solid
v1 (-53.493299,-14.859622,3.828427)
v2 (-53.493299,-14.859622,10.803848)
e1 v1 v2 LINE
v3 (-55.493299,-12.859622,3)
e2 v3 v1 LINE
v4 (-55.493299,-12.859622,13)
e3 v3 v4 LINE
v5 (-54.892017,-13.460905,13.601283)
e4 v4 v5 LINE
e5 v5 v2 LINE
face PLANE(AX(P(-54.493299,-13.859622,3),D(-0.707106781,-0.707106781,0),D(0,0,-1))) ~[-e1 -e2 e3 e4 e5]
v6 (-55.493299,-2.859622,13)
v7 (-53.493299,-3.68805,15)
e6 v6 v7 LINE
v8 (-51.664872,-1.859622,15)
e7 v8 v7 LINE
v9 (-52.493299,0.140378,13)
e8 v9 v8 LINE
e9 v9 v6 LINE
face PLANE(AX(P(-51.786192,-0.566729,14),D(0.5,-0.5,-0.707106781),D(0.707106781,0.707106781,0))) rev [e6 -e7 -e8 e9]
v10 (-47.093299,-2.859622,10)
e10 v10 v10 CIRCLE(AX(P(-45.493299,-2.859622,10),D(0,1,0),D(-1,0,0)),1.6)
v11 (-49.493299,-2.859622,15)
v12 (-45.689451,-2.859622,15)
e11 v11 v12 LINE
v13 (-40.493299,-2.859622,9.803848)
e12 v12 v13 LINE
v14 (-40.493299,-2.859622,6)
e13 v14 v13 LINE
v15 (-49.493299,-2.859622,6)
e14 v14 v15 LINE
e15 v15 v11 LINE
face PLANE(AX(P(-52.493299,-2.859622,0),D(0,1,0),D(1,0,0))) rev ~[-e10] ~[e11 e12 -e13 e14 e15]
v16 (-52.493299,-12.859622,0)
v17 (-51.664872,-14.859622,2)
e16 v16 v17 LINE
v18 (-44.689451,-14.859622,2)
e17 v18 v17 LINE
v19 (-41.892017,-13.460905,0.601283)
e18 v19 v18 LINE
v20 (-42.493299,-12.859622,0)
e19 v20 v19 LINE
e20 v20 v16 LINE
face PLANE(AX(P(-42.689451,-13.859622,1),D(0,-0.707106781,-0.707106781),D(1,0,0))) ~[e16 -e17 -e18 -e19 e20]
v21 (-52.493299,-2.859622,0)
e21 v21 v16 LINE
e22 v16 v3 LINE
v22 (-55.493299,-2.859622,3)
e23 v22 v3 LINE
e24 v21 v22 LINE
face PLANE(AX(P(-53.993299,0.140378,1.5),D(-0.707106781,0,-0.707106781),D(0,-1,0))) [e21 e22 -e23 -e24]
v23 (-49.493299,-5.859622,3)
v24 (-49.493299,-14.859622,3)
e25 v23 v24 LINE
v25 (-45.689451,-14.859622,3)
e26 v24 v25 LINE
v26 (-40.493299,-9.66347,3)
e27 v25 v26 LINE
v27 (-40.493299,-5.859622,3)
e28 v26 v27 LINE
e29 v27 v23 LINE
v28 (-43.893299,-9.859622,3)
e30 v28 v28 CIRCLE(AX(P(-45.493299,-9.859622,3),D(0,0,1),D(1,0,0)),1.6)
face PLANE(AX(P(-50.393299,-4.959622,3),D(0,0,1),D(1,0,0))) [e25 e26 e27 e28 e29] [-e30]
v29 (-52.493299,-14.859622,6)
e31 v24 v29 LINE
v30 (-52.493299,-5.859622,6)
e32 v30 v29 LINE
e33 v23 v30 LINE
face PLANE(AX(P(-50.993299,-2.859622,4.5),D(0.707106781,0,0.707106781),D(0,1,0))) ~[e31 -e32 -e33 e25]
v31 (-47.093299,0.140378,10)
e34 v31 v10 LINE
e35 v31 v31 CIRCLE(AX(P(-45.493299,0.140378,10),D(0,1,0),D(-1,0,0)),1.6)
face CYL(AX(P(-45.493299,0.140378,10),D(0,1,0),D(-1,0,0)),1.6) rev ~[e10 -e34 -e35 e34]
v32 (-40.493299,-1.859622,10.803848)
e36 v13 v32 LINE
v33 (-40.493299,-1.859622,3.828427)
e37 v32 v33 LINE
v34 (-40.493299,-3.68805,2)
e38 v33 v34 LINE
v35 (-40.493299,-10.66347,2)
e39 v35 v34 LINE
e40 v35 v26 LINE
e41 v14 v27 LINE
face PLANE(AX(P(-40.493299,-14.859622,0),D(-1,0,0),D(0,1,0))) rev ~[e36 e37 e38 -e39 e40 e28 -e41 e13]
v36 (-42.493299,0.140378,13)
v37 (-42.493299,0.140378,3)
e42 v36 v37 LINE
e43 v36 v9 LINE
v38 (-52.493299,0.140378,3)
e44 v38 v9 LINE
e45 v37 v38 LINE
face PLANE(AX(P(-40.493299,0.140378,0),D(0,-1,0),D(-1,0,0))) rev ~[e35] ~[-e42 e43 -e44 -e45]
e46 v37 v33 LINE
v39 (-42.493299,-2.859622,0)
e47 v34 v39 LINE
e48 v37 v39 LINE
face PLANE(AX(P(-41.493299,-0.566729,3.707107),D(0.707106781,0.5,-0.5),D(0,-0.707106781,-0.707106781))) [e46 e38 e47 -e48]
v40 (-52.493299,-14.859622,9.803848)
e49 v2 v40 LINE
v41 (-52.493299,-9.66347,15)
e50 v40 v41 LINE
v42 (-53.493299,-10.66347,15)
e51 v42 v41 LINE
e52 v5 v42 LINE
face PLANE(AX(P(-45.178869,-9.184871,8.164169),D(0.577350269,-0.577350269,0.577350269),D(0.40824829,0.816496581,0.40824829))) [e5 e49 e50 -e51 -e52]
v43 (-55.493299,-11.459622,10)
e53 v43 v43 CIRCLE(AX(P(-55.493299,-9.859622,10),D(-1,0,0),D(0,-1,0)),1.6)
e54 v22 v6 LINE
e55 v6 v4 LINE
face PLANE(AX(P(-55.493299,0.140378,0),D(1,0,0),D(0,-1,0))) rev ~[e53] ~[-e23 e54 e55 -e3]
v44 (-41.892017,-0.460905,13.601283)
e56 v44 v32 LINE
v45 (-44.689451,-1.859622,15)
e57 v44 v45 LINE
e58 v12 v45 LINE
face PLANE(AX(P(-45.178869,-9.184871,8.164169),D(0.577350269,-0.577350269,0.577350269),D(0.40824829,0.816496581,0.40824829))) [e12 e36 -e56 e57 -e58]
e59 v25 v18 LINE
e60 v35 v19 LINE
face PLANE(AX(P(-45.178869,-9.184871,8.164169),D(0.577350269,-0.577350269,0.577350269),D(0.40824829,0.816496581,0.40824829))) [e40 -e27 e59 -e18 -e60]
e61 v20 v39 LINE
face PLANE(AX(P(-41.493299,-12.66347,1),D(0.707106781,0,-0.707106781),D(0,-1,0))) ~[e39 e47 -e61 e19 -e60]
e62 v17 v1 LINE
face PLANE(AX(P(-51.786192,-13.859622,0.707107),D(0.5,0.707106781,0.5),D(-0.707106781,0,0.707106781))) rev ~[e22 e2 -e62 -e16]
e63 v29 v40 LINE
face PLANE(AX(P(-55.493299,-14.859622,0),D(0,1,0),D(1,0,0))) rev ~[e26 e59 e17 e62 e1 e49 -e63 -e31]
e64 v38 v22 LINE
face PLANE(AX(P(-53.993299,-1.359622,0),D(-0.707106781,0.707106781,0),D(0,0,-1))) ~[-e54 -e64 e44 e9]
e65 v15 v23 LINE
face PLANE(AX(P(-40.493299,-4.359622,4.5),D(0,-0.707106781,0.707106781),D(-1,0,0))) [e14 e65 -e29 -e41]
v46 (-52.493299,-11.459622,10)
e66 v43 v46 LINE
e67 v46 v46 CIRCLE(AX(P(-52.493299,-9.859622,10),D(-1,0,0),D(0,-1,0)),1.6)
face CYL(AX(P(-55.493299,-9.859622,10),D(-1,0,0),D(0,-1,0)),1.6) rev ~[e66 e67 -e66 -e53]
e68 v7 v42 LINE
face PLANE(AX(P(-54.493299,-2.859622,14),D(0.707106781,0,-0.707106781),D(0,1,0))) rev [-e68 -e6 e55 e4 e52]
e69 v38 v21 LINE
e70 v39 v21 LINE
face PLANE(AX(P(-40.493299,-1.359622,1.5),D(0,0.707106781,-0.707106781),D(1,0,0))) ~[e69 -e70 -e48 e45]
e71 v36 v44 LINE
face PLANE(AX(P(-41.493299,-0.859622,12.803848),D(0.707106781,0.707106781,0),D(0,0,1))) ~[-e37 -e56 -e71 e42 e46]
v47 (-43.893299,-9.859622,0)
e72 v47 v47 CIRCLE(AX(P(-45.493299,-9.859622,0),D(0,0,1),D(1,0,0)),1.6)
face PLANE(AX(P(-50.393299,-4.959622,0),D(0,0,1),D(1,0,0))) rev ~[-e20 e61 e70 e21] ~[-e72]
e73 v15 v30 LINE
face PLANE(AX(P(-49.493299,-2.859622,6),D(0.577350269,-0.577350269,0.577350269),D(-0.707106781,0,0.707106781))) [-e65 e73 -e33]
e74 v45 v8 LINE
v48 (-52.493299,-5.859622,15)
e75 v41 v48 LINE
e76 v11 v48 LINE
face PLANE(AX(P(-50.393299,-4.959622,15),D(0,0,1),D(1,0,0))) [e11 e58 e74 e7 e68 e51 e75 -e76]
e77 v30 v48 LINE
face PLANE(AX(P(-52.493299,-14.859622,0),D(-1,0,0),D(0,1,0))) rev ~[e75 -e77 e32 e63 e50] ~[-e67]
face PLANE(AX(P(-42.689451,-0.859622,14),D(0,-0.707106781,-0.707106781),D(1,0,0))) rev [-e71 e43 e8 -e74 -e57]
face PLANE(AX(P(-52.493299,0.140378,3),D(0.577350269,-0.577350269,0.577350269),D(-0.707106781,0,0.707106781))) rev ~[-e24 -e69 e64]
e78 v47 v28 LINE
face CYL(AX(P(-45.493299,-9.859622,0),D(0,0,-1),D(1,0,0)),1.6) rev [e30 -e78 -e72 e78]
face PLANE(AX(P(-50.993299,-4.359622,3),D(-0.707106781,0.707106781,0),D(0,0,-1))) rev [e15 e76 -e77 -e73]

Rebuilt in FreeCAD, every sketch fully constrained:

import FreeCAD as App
import Part
import Sketcher
from FreeCAD import Vector
Q = App.Units.Quantity


def edges_at(feature, points):
    """Names of the edges that pass closest to the given points."""
    edges = feature.Shape.Edges
    near = lambda p: min(range(len(edges)), key=lambda i: edges[i].distToShape(Part.Vertex(*p))[0])
    return sorted({f"Edge{near(p) + 1}" for p in points})

doc = App.newDocument("Part")
body = doc.addObject("PartDesign::Body", "Body")

sketch1 = body.newObject("Sketcher::SketchObject", "Sketch")
sketch1.AttachmentSupport = (doc.getObject("XY_Plane"), [""])
sketch1.MapMode = "FlatFace"
sketch1.addGeometry([
    Part.LineSegment(Vector(-40.5, 0.1, 0), Vector(-55.5, 0.1, 0)),
    Part.LineSegment(Vector(-55.5, 0.1, 0), Vector(-55.5, -14.9, 0)),
    Part.LineSegment(Vector(-55.5, -14.9, 0), Vector(-40.5, -14.9, 0)),
    Part.LineSegment(Vector(-40.5, -14.9, 0), Vector(-40.5, 0.1, 0)),
    Part.Circle(Vector(-45.5, -9.9, 0), Vector(0, 0, 1), 1.6),
], False)
sketch1.addConstraint([
    Sketcher.Constraint("Coincident", 0, 2, 1, 1),
    Sketcher.Constraint("Coincident", 1, 2, 2, 1),
    Sketcher.Constraint("Coincident", 2, 2, 3, 1),
    Sketcher.Constraint("Coincident", 3, 2, 0, 1),
    Sketcher.Constraint("Horizontal", 0),
    Sketcher.Constraint("Vertical", 1),
    Sketcher.Constraint("Horizontal", 2),
    Sketcher.Constraint("Vertical", 3),
    Sketcher.Constraint("Equal", 2, 1),
    Sketcher.Constraint("Diameter", 4, Q("3.2 mm")),
    Sketcher.Constraint("DistanceX", 0, 2, 0, 1, Q("15 mm")),
    Sketcher.Constraint("DistanceX", 0, 2, 4, 3, Q("10 mm")),
    Sketcher.Constraint("DistanceY", 4, 3, 0, 2, Q("10 mm")),
    Sketcher.Constraint("DistanceX", 4, 3, -1, 1, Q("45.493299 mm")),
    Sketcher.Constraint("DistanceY", 4, 3, -1, 1, Q("9.859622 mm")),
])
pad1 = body.newObject("PartDesign::Pad", "Pad")
pad1.Profile = sketch1
pad1.Length = 3

sketch2 = body.newObject("Sketcher::SketchObject", "Sketch001")
sketch2.AttachmentSupport = (doc.getObject("XY_Plane"), [""])
sketch2.MapMode = "FlatFace"
sketch2.addGeometry([
    Part.LineSegment(Vector(-40.5, 0.1, 0), Vector(-55.5, 0.1, 0)),
    Part.LineSegment(Vector(-55.5, 0.1, 0), Vector(-55.5, -14.9, 0)),
    Part.LineSegment(Vector(-55.5, -14.9, 0), Vector(-52.5, -14.9, 0)),
    Part.LineSegment(Vector(-52.5, -14.9, 0), Vector(-52.5, -2.9, 0)),
    Part.LineSegment(Vector(-52.5, -2.9, 0), Vector(-40.5, -2.9, 0)),
    Part.LineSegment(Vector(-40.5, -2.9, 0), Vector(-40.5, 0.1, 0)),
], False)
sketch2.addConstraint([
    Sketcher.Constraint("Coincident", 0, 2, 1, 1),
    Sketcher.Constraint("Coincident", 1, 2, 2, 1),
    Sketcher.Constraint("Coincident", 2, 2, 3, 1),
    Sketcher.Constraint("Coincident", 3, 2, 4, 1),
    Sketcher.Constraint("Coincident", 4, 2, 5, 1),
    Sketcher.Constraint("Coincident", 5, 2, 0, 1),
    Sketcher.Constraint("Horizontal", 0),
    Sketcher.Constraint("Vertical", 1),
    Sketcher.Constraint("Horizontal", 2),
    Sketcher.Constraint("Vertical", 3),
    Sketcher.Constraint("Horizontal", 4),
    Sketcher.Constraint("Vertical", 5),
    Sketcher.Constraint("Equal", 0, 1),
    Sketcher.Constraint("Equal", 4, 3),
    Sketcher.Constraint("DistanceX", 0, 2, 0, 1, Q("15 mm")),
    Sketcher.Constraint("DistanceX", 2, 1, 2, 2, Q("3 mm")),
    Sketcher.Constraint("DistanceX", 0, 2, -1, 1, Q("55.493299 mm")),
    Sketcher.Constraint("DistanceY", -1, 1, 0, 2, Q("0.140378 mm")),
])
pad2 = body.newObject("PartDesign::Pad", "Pad001")
pad2.Profile = sketch2
pad2.Length = 15

sketch3 = body.newObject("Sketcher::SketchObject", "Sketch002")
sketch3.AttachmentSupport = (doc.getObject("XZ_Plane"), [""])
sketch3.MapMode = "FlatFace"
sketch3.AttachmentOffset = App.Placement(Vector(0, 0, -0.140378), App.Rotation())
sketch3.addGeometry(Part.Circle(Vector(-45.5, 10, 0), Vector(0, 0, 1), 1.6), False)
sketch3.addConstraint([
    Sketcher.Constraint("Diameter", 0, Q("3.2 mm")),
    Sketcher.Constraint("DistanceY", -1, 1, 0, 3, Q("10 mm")),
    Sketcher.Constraint("DistanceX", 0, 3, -1, 1, Q("45.493299 mm")),
])
pocket1 = body.newObject("PartDesign::Pocket", "Pocket")
pocket1.Profile = sketch3
pocket1.Length = 25
pocket1.Reversed = True

sketch4 = body.newObject("Sketcher::SketchObject", "Sketch003")
sketch4.AttachmentSupport = (doc.getObject("YZ_Plane"), [""])
sketch4.MapMode = "FlatFace"
sketch4.AttachmentOffset = App.Placement(Vector(0, 0, -55.493299), App.Rotation())
sketch4.addGeometry(Part.Circle(Vector(-9.9, 10, 0), Vector(0, 0, 1), 1.6), False)
sketch4.addConstraint([
    Sketcher.Constraint("Diameter", 0, Q("3.2 mm")),
    Sketcher.Constraint("DistanceY", -1, 1, 0, 3, Q("10 mm")),
    Sketcher.Constraint("DistanceX", 0, 3, -1, 1, Q("9.859622 mm")),
])
pocket2 = body.newObject("PartDesign::Pocket", "Pocket001")
pocket2.Profile = sketch4
pocket2.Length = 25
pocket2.Reversed = True

sketch5 = body.newObject("Sketcher::SketchObject", "Sketch004")
sketch5.Placement = App.Placement(Vector(-7.544559, 7.544559, -7.544559), App.Rotation(Vector(0.40824829, 0.816496581, 0.40824829), Vector(-0.707106781, 0, 0.707106781), Vector(0.577350269, -0.577350269, 0.577350269), "ZXY"))
sketch5.addGeometry([
    Part.LineSegment(Vector(-14, 49, 0), Vector(-30, 50, 0)),
    Part.LineSegment(Vector(-30, 50, 0), Vector(-38, 39, 0)),
    Part.LineSegment(Vector(-38, 39, 0), Vector(-32, 25, 0)),
    Part.LineSegment(Vector(-32, 25, 0), Vector(-16, 25, 0)),
    Part.LineSegment(Vector(-16, 25, 0), Vector(-7, 39, 0)),
    Part.LineSegment(Vector(-7, 39, 0), Vector(-14, 49, 0)),
], False)
sketch5.addConstraint([
    Sketcher.Constraint("Coincident", 0, 2, 1, 1),
    Sketcher.Constraint("Coincident", 1, 2, 2, 1),
    Sketcher.Constraint("Coincident", 2, 2, 3, 1),
    Sketcher.Constraint("Coincident", 3, 2, 4, 1),
    Sketcher.Constraint("Coincident", 4, 2, 5, 1),
    Sketcher.Constraint("Coincident", 5, 2, 0, 1),
    Sketcher.Constraint("DistanceY", -1, 1, 0, 2, Q("50.453998 mm")),
    Sketcher.Constraint("DistanceX", 1, 2, 2, 2, Q("5.820502 mm")),
    Sketcher.Constraint("Distance", 4, Q("17.44908 mm")),
    Sketcher.Constraint("DistanceX", 0, 2, -1, 1, Q("30.193649 mm")),
    Sketcher.Constraint("DistanceX", 4, 2, -1, 1, Q("6.863928 mm")),
    Sketcher.Constraint("DistanceY", 1, 2, 0, 2, Q("11.57074 mm")),
    Sketcher.Constraint("DistanceY", 2, 2, 1, 2, Q("13.51135 mm")),
    Sketcher.Constraint("DistanceX", 2, 2, 3, 2, Q("15.43789 mm")),
    Sketcher.Constraint("DistanceY", 3, 2, 2, 2, Q("0.717269 mm")),
    Sketcher.Constraint("DistanceY", 4, 2, 5, 2, Q("10.114681 mm")),
    Sketcher.Constraint("DistanceX", 3, 2, 5, 2, Q("2.57867 mm")),
    Sketcher.Constraint("DistanceY", 3, 2, 5, 2, Q("24.788238 mm")),
])
pocket3 = body.newObject("PartDesign::Pocket", "Pocket002")
pocket3.Profile = sketch5
pocket3.Length = 3
doc.recompute()

chamfer = body.newObject("PartDesign::Chamfer", "Chamfer")
chamfer.Base = (pocket3, edges_at(pocket3, [
    (-55.493, -7.36, 0),
    (-47.993, 0.14, 0),
    (-55.493, 0.14, 7.5),
    (-52.493, -8.86, 3),
    (-46.493, -2.86, 3),
    (-52.493, -2.86, 9),
]))
chamfer.Size = 3
doc.recompute()

chamfer2 = body.newObject("PartDesign::Chamfer", "Chamfer001")
chamfer2.Base = (chamfer, edges_at(chamfer, [(-40.493, 0.14, 7.902), (-40.493, -7.762, 0), (-40.493, -1.36, 1.5)]))
chamfer2.Size = 2
doc.recompute()

chamfer3 = body.newObject("PartDesign::Chamfer", "Chamfer002")
chamfer3.Base = (chamfer2, edges_at(chamfer2, [(-47.591, -14.86, 0), (-55.493, -14.86, 7.902), (-53.993, -14.86, 1.5)]))
chamfer3.Size = 2
doc.recompute()

chamfer4 = body.newObject("PartDesign::Chamfer", "Chamfer003")
chamfer4.Base = (chamfer3, edges_at(chamfer3, [(-53.993, -1.36, 15), (-55.493, -7.762, 15), (-47.591, 0.14, 15)]))
chamfer4.Size = 2

doc.recompute()
